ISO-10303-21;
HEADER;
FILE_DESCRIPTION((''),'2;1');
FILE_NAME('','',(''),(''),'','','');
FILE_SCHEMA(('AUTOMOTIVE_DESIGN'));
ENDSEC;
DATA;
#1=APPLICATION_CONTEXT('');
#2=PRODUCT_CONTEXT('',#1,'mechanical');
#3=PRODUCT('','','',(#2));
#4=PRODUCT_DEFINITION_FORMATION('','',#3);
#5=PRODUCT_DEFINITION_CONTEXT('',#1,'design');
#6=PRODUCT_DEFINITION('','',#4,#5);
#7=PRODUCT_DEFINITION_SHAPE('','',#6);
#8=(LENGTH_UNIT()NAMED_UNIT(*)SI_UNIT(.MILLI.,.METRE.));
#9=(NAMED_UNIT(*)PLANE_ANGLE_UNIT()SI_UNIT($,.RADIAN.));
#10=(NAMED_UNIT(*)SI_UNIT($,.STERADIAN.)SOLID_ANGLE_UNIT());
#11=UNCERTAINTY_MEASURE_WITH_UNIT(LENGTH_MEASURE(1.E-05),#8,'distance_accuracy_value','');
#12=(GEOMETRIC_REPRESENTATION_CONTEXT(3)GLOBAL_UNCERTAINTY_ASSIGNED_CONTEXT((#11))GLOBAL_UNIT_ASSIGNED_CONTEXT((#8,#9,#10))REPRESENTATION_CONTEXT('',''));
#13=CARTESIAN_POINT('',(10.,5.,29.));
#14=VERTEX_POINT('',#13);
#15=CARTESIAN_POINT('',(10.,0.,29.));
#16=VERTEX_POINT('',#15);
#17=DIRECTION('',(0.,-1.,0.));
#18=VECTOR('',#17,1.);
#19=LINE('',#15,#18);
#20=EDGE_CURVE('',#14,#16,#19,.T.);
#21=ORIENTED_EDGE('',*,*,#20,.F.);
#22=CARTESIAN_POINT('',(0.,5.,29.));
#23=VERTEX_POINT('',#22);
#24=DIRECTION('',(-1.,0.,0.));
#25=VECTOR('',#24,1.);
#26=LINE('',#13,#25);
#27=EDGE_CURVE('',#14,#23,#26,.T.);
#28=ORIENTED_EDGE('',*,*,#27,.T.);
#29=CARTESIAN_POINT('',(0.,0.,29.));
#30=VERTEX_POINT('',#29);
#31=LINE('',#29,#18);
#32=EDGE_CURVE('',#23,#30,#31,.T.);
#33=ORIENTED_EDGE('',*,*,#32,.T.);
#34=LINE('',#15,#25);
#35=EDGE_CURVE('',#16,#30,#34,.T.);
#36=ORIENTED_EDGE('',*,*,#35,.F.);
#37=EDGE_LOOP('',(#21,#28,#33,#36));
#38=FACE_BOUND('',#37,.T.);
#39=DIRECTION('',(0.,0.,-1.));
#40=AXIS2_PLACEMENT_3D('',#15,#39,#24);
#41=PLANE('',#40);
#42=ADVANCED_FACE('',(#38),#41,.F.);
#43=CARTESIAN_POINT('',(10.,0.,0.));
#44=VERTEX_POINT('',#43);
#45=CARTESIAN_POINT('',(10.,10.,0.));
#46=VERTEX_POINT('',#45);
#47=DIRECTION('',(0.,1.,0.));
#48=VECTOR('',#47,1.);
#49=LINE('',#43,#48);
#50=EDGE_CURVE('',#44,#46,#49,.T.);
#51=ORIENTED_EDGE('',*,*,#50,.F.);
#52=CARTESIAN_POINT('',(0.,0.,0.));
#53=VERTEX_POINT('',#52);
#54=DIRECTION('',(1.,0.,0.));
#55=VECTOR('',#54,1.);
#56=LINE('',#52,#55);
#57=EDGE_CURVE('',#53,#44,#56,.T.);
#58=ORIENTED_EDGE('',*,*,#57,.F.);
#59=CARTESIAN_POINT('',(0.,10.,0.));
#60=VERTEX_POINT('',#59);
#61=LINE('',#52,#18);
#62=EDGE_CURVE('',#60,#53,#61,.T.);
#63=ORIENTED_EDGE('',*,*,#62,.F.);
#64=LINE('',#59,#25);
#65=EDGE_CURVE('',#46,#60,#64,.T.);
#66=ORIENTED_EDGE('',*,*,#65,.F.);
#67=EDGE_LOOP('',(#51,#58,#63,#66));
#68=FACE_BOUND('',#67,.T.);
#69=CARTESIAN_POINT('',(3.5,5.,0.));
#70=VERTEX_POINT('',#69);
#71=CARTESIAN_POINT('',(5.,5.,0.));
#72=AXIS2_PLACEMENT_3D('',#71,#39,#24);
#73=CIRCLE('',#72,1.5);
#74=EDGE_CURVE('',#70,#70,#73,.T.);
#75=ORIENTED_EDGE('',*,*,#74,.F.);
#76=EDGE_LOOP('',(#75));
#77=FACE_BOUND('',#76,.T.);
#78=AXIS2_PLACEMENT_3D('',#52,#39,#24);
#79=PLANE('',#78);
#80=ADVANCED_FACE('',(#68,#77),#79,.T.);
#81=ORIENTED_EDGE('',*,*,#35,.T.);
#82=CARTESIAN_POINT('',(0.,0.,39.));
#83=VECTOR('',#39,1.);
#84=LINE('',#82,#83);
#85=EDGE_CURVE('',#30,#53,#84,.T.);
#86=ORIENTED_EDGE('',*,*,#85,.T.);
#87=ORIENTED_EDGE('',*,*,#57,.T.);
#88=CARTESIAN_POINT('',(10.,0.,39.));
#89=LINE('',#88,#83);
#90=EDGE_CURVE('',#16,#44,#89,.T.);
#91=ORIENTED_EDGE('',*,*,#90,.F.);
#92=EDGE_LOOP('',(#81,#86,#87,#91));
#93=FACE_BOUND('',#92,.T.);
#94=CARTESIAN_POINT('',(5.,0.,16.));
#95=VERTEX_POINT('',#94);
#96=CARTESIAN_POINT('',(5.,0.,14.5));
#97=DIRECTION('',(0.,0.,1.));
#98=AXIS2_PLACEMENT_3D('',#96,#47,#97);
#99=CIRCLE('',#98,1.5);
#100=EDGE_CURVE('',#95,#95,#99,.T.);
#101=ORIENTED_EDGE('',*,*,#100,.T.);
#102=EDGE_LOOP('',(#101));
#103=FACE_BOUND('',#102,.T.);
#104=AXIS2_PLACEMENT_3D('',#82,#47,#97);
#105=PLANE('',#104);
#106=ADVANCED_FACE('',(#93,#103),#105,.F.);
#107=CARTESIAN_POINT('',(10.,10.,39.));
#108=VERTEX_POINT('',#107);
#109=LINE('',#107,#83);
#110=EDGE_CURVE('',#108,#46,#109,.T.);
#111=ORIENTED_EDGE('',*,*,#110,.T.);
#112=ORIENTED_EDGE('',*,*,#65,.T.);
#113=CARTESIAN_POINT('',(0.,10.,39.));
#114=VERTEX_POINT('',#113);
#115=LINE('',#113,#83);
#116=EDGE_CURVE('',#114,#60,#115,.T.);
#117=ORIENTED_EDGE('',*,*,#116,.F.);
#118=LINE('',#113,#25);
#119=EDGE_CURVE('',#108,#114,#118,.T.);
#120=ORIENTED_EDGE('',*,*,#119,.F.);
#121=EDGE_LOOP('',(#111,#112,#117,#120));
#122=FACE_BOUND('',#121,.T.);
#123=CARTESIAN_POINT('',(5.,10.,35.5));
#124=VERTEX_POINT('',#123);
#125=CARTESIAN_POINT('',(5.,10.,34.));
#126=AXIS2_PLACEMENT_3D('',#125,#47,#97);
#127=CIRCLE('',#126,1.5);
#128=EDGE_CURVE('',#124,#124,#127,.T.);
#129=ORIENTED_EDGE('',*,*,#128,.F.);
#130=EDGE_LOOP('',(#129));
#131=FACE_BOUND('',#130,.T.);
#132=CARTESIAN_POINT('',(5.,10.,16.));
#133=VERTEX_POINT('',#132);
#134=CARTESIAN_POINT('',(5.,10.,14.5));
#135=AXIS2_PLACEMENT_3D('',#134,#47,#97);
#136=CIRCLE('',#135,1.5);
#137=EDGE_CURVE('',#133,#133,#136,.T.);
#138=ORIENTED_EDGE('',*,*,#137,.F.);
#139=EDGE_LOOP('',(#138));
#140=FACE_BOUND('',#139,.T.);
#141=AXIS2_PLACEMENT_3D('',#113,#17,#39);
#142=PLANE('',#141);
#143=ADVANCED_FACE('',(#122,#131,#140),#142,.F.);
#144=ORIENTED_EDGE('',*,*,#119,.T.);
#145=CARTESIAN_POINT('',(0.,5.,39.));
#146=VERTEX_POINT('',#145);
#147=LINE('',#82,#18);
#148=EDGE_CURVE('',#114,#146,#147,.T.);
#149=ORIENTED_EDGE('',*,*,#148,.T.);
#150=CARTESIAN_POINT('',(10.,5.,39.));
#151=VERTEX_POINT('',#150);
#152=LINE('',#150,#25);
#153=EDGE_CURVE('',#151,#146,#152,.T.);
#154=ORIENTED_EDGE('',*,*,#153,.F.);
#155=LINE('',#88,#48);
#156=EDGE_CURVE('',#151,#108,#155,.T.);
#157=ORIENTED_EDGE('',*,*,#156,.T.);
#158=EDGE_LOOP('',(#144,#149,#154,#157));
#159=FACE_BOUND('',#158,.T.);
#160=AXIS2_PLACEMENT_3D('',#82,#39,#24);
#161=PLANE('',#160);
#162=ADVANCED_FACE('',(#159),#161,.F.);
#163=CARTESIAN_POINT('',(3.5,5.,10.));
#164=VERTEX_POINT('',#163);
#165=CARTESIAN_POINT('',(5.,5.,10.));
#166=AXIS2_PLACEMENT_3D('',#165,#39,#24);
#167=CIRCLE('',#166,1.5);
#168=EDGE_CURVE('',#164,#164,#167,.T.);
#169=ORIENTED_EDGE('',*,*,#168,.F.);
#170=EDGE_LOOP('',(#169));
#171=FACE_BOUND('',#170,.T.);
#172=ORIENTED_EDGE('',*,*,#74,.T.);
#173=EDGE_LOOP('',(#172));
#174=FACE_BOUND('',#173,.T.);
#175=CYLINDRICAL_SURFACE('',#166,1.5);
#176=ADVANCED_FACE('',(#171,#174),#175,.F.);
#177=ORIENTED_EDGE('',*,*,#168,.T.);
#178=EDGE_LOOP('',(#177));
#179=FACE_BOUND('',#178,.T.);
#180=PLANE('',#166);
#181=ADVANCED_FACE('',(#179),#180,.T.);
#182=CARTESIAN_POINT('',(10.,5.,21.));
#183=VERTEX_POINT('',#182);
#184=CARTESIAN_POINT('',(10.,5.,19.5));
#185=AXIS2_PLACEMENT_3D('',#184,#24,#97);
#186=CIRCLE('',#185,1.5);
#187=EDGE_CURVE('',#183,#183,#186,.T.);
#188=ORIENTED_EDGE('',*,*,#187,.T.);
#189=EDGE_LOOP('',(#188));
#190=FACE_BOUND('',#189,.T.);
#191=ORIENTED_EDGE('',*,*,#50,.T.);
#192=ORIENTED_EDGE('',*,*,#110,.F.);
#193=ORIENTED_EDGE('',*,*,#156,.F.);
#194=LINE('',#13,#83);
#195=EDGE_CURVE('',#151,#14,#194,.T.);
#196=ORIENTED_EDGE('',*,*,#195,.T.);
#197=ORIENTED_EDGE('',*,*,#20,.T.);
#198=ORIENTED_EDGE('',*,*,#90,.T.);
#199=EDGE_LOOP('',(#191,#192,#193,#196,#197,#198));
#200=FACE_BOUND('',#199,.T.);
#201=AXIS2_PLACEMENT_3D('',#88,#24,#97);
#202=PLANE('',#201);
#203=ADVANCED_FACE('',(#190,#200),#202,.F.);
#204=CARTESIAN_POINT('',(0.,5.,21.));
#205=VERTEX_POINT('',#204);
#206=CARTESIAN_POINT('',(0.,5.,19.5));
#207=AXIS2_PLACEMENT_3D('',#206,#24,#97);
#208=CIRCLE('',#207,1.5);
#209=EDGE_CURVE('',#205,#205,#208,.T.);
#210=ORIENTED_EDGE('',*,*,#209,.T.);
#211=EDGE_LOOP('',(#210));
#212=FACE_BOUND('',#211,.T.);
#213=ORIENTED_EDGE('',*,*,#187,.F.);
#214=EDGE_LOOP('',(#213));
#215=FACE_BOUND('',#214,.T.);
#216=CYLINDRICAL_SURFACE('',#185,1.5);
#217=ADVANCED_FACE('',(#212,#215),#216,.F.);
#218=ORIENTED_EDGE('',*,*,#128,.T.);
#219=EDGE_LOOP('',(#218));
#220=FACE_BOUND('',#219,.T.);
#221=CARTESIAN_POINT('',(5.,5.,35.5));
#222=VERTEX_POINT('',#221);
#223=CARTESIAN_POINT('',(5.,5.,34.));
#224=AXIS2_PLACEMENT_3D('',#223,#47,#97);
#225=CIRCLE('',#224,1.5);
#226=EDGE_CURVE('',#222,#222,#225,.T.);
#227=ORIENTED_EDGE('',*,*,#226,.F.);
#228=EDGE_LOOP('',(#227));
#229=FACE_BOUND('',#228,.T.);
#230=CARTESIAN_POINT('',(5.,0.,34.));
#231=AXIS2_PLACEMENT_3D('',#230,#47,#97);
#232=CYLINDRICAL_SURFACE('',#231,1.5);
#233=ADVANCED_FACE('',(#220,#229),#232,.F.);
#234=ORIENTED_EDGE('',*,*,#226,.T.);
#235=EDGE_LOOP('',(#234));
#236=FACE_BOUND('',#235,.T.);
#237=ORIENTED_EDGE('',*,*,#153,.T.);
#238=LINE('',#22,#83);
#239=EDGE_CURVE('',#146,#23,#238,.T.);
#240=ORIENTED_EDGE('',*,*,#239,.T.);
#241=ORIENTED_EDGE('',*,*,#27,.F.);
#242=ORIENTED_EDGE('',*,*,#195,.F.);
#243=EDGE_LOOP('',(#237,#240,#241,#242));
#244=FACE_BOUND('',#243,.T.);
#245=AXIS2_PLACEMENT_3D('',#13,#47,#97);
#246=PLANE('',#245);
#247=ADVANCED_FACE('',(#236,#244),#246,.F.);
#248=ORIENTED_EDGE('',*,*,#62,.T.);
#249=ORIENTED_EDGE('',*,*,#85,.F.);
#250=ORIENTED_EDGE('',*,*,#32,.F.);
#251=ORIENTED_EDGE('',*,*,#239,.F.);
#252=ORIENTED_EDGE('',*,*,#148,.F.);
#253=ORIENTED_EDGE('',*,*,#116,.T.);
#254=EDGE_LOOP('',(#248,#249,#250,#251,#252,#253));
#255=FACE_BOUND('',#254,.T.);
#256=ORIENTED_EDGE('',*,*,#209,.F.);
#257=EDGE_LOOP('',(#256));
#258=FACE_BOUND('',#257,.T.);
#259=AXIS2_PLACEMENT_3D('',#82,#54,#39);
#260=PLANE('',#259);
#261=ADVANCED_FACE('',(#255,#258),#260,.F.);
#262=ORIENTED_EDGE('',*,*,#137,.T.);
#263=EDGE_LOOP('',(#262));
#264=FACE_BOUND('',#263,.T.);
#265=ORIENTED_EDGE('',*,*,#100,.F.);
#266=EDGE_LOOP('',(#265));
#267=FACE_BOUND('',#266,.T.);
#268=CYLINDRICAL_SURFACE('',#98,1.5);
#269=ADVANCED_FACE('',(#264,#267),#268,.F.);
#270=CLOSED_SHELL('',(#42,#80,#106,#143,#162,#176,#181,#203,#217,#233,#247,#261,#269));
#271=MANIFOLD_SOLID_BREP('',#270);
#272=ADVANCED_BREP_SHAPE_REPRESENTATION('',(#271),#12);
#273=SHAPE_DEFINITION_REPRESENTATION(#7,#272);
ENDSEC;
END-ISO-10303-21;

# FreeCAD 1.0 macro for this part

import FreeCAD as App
import Part
import Sketcher

V = App.Vector
Q = App.Units.Quantity


def add_polygon(sketch, points):
    """Adds a closed chain of lines whose ends are joined by coincident constraints."""
    first, n = sketch.GeometryCount, len(points)
    for a, b in zip(points, points[1:] + points[:1]):
        sketch.addGeometry(Part.LineSegment(App.Vector(*a, 0), App.Vector(*b, 0)), False)
    for i in range(n):
        sketch.addConstraint(Sketcher.Constraint("Coincident", first + i, 2, first + (i + 1) % n, 1))

doc = App.newDocument("Part")
body = doc.addObject("PartDesign::Body", "Body")

# Sketch on XY plane
sketch1 = body.newObject("Sketcher::SketchObject", "Sketch")
sketch1.AttachmentSupport = (doc.getObject("XY_Plane"), [""])
sketch1.MapMode = "FlatFace"
add_polygon(sketch1, [(0, 10), (0, 0), (10, 0), (10, 10)])  # lines 0-3
sketch1.addConstraint([
    Sketcher.Constraint("Vertical", 0),
    Sketcher.Constraint("Horizontal", 1),
    Sketcher.Constraint("Vertical", 2),
    Sketcher.Constraint("Horizontal", 3),
    Sketcher.Constraint("Coincident", 0, 2, -1, 1),
    Sketcher.Constraint("Equal", 3, 0),
    Sketcher.Constraint("DistanceX", 1, 1, 1, 2, Q("10 mm")),
])
pad1 = body.newObject("PartDesign::Pad", "Pad")
pad1.Profile = sketch1
pad1.Length = 39

# Sketch on YZ plane
sketch2 = body.newObject("Sketcher::SketchObject", "Sketch001")
sketch2.AttachmentSupport = (doc.getObject("YZ_Plane"), [""])
sketch2.MapMode = "FlatFace"
add_polygon(sketch2, [(5, 29), (0, 29), (0, 39), (5, 39)])  # lines 0-3
sketch2.addConstraint([
    Sketcher.Constraint("Horizontal", 0),
    Sketcher.Constraint("Vertical", 1),
    Sketcher.Constraint("Horizontal", 2),
    Sketcher.Constraint("Vertical", 3),
    Sketcher.Constraint("PointOnObject", 0, 2, -2),
    Sketcher.Constraint("DistanceX", 0, 2, 0, 1, Q("5 mm")),
    Sketcher.Constraint("DistanceY", 1, 1, 1, 2, Q("10 mm")),
    Sketcher.Constraint("DistanceY", -1, 1, 0, 2, Q("29 mm")),
])
pocket1 = body.newObject("PartDesign::Pocket", "Pocket")
pocket1.Profile = sketch2
pocket1.Length = 10
pocket1.Reversed = True

# Sketch on XY plane
sketch3 = body.newObject("Sketcher::SketchObject", "Sketch002")
sketch3.AttachmentSupport = (doc.getObject("XY_Plane"), [""])
sketch3.MapMode = "FlatFace"
sketch3.addGeometry(Part.Circle(V(5, 5, 0), V(0, 0, 1), 1.5), False)
sketch3.addConstraint([
    Sketcher.Constraint("Diameter", 0, Q("3 mm")),
    Sketcher.Constraint("DistanceX", -1, 1, 0, 3, Q("5 mm")),
    Sketcher.Constraint("DistanceY", -1, 1, 0, 3, Q("5 mm")),
])
pocket2 = body.newObject("PartDesign::Pocket", "Pocket001")
pocket2.Profile = sketch3
pocket2.Length = 10
pocket2.Reversed = True

# Sketch on XZ plane
sketch4 = body.newObject("Sketcher::SketchObject", "Sketch003")
sketch4.AttachmentSupport = (doc.getObject("XZ_Plane"), [""])
sketch4.MapMode = "FlatFace"
sketch4.AttachmentOffset = App.Placement(V(0, 0, -10), App.Rotation())
sketch4.addGeometry(Part.Circle(V(5, 34, 0), V(0, 0, 1), 1.5), False)
sketch4.addConstraint([
    Sketcher.Constraint("Diameter", 0, Q("3 mm")),
    Sketcher.Constraint("DistanceX", -1, 1, 0, 3, Q("5 mm")),
    Sketcher.Constraint("DistanceY", -1, 1, 0, 3, Q("34 mm")),
])
pocket3 = body.newObject("PartDesign::Pocket", "Pocket002")
pocket3.Profile = sketch4
pocket3.Type = "ThroughAll"
pocket3.Reversed = True

# Sketch on YZ plane
sketch5 = body.newObject("Sketcher::SketchObject", "Sketch004")
sketch5.AttachmentSupport = (doc.getObject("YZ_Plane"), [""])
sketch5.MapMode = "FlatFace"
sketch5.addGeometry(Part.Circle(V(5, 19.5, 0), V(0, 0, 1), 1.5), False)
sketch5.addConstraint([
    Sketcher.Constraint("Diameter", 0, Q("3 mm")),
    Sketcher.Constraint("DistanceX", -1, 1, 0, 3, Q("5 mm")),
    Sketcher.Constraint("DistanceY", -1, 1, 0, 3, Q("19.5 mm")),
])
pocket4 = body.newObject("PartDesign::Pocket", "Pocket003")
pocket4.Profile = sketch5
pocket4.Type = "ThroughAll"
pocket4.Reversed = True

# Sketch on XZ plane
sketch6 = body.newObject("Sketcher::SketchObject", "Sketch005")
sketch6.AttachmentSupport = (doc.getObject("XZ_Plane"), [""])
sketch6.MapMode = "FlatFace"
sketch6.AttachmentOffset = App.Placement(V(0, 0, -10), App.Rotation())
sketch6.addGeometry(Part.Circle(V(5, 14.5, 0), V(0, 0, 1), 1.5), False)
sketch6.addConstraint([
    Sketcher.Constraint("Diameter", 0, Q("3 mm")),
    Sketcher.Constraint("DistanceX", -1, 1, 0, 3, Q("5 mm")),
    Sketcher.Constraint("DistanceY", -1, 1, 0, 3, Q("14.5 mm")),
])
pocket5 = body.newObject("PartDesign::Pocket", "Pocket004")
pocket5.Profile = sketch6
pocket5.Type = "ThroughAll"
pocket5.Reversed = True

doc.recompute()
